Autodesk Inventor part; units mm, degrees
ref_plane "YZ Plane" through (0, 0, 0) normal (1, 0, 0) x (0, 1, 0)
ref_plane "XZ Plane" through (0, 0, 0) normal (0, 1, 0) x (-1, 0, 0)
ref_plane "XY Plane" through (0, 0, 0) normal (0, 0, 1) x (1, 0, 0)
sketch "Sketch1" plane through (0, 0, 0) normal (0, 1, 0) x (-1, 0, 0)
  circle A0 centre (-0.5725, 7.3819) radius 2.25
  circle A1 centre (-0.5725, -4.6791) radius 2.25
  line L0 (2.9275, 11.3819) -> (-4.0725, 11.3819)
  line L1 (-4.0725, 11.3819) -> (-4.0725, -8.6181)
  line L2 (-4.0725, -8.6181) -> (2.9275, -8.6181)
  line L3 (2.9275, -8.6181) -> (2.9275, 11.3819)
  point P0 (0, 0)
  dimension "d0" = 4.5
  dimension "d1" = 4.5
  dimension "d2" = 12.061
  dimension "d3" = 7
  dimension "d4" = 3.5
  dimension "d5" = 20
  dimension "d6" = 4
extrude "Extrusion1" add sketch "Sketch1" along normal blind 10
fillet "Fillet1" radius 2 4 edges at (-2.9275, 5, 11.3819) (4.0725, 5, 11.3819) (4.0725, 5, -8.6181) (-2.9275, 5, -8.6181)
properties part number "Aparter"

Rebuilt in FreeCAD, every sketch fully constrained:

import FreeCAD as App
import Part
import Sketcher
from FreeCAD import Vector
Q = App.Units.Quantity


def edges_at(feature, points):
    """Names of the edges that pass closest to the given points."""
    edges = feature.Shape.Edges
    near = lambda p: min(range(len(edges)), key=lambda i: edges[i].distToShape(Part.Vertex(*p))[0])
    return sorted({f"Edge{near(p) + 1}" for p in points})

doc = App.newDocument("Part")
body = doc.addObject("PartDesign::Body", "Body")

# Sketch on XZ plane
sketch1 = body.newObject("Sketcher::SketchObject", "Sketch")
sketch1.AttachmentSupport = (doc.getObject("XZ_Plane"), [""])
sketch1.MapMode = "FlatFace"
sketch1.addGeometry([
    Part.LineSegment(Vector(-2.9, -8.6, 0), Vector(-2.9, 11.4, 0)),  # 0
    Part.LineSegment(Vector(-2.9, 11.4, 0), Vector(4.1, 11.4, 0)),  # 1
    Part.LineSegment(Vector(4.1, 11.4, 0), Vector(4.1, -8.6, 0)),  # 2
    Part.LineSegment(Vector(4.1, -8.6, 0), Vector(-2.9, -8.6, 0)),  # 3
    Part.Circle(Vector(0.6, -4.7, 0), Vector(0, 0, 1), 2.2),  # 4
    Part.Circle(Vector(0.6, 7.4, 0), Vector(0, 0, 1), 2.2),  # 5
], False)
sketch1.addConstraint([
    Sketcher.Constraint("Coincident", 0, 2, 1, 1),
    Sketcher.Constraint("Coincident", 1, 2, 2, 1),
    Sketcher.Constraint("Coincident", 2, 2, 3, 1),
    Sketcher.Constraint("Coincident", 3, 2, 0, 1),
    Sketcher.Constraint("Vertical", 0),
    Sketcher.Constraint("Horizontal", 1),
    Sketcher.Constraint("Vertical", 2),
    Sketcher.Constraint("Horizontal", 3),
    Sketcher.Constraint("Equal", 4, 5),
    Sketcher.Constraint("Vertical", 4, 3, 5, 3),
    Sketcher.Constraint("Diameter", 4, Q("4.5 mm")),
    Sketcher.Constraint("DistanceX", 1, 1, 1, 2, Q("7 mm")),
    Sketcher.Constraint("DistanceY", 0, 1, 0, 2, Q("20 mm")),
    Sketcher.Constraint("DistanceY", 5, 3, 0, 2, Q("4 mm")),
    Sketcher.Constraint("DistanceX", 0, 2, 5, 3, Q("3.5 mm")),
    Sketcher.Constraint("DistanceY", 4, 3, 5, 3, Q("12.061 mm")),
    Sketcher.Constraint("DistanceY", 4, 3, -1, 1, Q("4.679 mm")),
    Sketcher.Constraint("DistanceX", -1, 1, 4, 3, Q("0.5725 mm")),
])
pad1 = body.newObject("PartDesign::Pad", "Pad")
pad1.Profile = sketch1
pad1.Length = 10
pad1.Reversed = True
doc.recompute()

fillet = body.newObject("PartDesign::Fillet", "Fillet")
fillet.Base = (pad1, edges_at(pad1, [
    (-2.928, 5, 11.382),
    (4.072, 5, 11.382),
    (4.072, 5, -8.618),
    (-2.928, 5, -8.618),
]))
fillet.Radius = 2

doc.recompute()
